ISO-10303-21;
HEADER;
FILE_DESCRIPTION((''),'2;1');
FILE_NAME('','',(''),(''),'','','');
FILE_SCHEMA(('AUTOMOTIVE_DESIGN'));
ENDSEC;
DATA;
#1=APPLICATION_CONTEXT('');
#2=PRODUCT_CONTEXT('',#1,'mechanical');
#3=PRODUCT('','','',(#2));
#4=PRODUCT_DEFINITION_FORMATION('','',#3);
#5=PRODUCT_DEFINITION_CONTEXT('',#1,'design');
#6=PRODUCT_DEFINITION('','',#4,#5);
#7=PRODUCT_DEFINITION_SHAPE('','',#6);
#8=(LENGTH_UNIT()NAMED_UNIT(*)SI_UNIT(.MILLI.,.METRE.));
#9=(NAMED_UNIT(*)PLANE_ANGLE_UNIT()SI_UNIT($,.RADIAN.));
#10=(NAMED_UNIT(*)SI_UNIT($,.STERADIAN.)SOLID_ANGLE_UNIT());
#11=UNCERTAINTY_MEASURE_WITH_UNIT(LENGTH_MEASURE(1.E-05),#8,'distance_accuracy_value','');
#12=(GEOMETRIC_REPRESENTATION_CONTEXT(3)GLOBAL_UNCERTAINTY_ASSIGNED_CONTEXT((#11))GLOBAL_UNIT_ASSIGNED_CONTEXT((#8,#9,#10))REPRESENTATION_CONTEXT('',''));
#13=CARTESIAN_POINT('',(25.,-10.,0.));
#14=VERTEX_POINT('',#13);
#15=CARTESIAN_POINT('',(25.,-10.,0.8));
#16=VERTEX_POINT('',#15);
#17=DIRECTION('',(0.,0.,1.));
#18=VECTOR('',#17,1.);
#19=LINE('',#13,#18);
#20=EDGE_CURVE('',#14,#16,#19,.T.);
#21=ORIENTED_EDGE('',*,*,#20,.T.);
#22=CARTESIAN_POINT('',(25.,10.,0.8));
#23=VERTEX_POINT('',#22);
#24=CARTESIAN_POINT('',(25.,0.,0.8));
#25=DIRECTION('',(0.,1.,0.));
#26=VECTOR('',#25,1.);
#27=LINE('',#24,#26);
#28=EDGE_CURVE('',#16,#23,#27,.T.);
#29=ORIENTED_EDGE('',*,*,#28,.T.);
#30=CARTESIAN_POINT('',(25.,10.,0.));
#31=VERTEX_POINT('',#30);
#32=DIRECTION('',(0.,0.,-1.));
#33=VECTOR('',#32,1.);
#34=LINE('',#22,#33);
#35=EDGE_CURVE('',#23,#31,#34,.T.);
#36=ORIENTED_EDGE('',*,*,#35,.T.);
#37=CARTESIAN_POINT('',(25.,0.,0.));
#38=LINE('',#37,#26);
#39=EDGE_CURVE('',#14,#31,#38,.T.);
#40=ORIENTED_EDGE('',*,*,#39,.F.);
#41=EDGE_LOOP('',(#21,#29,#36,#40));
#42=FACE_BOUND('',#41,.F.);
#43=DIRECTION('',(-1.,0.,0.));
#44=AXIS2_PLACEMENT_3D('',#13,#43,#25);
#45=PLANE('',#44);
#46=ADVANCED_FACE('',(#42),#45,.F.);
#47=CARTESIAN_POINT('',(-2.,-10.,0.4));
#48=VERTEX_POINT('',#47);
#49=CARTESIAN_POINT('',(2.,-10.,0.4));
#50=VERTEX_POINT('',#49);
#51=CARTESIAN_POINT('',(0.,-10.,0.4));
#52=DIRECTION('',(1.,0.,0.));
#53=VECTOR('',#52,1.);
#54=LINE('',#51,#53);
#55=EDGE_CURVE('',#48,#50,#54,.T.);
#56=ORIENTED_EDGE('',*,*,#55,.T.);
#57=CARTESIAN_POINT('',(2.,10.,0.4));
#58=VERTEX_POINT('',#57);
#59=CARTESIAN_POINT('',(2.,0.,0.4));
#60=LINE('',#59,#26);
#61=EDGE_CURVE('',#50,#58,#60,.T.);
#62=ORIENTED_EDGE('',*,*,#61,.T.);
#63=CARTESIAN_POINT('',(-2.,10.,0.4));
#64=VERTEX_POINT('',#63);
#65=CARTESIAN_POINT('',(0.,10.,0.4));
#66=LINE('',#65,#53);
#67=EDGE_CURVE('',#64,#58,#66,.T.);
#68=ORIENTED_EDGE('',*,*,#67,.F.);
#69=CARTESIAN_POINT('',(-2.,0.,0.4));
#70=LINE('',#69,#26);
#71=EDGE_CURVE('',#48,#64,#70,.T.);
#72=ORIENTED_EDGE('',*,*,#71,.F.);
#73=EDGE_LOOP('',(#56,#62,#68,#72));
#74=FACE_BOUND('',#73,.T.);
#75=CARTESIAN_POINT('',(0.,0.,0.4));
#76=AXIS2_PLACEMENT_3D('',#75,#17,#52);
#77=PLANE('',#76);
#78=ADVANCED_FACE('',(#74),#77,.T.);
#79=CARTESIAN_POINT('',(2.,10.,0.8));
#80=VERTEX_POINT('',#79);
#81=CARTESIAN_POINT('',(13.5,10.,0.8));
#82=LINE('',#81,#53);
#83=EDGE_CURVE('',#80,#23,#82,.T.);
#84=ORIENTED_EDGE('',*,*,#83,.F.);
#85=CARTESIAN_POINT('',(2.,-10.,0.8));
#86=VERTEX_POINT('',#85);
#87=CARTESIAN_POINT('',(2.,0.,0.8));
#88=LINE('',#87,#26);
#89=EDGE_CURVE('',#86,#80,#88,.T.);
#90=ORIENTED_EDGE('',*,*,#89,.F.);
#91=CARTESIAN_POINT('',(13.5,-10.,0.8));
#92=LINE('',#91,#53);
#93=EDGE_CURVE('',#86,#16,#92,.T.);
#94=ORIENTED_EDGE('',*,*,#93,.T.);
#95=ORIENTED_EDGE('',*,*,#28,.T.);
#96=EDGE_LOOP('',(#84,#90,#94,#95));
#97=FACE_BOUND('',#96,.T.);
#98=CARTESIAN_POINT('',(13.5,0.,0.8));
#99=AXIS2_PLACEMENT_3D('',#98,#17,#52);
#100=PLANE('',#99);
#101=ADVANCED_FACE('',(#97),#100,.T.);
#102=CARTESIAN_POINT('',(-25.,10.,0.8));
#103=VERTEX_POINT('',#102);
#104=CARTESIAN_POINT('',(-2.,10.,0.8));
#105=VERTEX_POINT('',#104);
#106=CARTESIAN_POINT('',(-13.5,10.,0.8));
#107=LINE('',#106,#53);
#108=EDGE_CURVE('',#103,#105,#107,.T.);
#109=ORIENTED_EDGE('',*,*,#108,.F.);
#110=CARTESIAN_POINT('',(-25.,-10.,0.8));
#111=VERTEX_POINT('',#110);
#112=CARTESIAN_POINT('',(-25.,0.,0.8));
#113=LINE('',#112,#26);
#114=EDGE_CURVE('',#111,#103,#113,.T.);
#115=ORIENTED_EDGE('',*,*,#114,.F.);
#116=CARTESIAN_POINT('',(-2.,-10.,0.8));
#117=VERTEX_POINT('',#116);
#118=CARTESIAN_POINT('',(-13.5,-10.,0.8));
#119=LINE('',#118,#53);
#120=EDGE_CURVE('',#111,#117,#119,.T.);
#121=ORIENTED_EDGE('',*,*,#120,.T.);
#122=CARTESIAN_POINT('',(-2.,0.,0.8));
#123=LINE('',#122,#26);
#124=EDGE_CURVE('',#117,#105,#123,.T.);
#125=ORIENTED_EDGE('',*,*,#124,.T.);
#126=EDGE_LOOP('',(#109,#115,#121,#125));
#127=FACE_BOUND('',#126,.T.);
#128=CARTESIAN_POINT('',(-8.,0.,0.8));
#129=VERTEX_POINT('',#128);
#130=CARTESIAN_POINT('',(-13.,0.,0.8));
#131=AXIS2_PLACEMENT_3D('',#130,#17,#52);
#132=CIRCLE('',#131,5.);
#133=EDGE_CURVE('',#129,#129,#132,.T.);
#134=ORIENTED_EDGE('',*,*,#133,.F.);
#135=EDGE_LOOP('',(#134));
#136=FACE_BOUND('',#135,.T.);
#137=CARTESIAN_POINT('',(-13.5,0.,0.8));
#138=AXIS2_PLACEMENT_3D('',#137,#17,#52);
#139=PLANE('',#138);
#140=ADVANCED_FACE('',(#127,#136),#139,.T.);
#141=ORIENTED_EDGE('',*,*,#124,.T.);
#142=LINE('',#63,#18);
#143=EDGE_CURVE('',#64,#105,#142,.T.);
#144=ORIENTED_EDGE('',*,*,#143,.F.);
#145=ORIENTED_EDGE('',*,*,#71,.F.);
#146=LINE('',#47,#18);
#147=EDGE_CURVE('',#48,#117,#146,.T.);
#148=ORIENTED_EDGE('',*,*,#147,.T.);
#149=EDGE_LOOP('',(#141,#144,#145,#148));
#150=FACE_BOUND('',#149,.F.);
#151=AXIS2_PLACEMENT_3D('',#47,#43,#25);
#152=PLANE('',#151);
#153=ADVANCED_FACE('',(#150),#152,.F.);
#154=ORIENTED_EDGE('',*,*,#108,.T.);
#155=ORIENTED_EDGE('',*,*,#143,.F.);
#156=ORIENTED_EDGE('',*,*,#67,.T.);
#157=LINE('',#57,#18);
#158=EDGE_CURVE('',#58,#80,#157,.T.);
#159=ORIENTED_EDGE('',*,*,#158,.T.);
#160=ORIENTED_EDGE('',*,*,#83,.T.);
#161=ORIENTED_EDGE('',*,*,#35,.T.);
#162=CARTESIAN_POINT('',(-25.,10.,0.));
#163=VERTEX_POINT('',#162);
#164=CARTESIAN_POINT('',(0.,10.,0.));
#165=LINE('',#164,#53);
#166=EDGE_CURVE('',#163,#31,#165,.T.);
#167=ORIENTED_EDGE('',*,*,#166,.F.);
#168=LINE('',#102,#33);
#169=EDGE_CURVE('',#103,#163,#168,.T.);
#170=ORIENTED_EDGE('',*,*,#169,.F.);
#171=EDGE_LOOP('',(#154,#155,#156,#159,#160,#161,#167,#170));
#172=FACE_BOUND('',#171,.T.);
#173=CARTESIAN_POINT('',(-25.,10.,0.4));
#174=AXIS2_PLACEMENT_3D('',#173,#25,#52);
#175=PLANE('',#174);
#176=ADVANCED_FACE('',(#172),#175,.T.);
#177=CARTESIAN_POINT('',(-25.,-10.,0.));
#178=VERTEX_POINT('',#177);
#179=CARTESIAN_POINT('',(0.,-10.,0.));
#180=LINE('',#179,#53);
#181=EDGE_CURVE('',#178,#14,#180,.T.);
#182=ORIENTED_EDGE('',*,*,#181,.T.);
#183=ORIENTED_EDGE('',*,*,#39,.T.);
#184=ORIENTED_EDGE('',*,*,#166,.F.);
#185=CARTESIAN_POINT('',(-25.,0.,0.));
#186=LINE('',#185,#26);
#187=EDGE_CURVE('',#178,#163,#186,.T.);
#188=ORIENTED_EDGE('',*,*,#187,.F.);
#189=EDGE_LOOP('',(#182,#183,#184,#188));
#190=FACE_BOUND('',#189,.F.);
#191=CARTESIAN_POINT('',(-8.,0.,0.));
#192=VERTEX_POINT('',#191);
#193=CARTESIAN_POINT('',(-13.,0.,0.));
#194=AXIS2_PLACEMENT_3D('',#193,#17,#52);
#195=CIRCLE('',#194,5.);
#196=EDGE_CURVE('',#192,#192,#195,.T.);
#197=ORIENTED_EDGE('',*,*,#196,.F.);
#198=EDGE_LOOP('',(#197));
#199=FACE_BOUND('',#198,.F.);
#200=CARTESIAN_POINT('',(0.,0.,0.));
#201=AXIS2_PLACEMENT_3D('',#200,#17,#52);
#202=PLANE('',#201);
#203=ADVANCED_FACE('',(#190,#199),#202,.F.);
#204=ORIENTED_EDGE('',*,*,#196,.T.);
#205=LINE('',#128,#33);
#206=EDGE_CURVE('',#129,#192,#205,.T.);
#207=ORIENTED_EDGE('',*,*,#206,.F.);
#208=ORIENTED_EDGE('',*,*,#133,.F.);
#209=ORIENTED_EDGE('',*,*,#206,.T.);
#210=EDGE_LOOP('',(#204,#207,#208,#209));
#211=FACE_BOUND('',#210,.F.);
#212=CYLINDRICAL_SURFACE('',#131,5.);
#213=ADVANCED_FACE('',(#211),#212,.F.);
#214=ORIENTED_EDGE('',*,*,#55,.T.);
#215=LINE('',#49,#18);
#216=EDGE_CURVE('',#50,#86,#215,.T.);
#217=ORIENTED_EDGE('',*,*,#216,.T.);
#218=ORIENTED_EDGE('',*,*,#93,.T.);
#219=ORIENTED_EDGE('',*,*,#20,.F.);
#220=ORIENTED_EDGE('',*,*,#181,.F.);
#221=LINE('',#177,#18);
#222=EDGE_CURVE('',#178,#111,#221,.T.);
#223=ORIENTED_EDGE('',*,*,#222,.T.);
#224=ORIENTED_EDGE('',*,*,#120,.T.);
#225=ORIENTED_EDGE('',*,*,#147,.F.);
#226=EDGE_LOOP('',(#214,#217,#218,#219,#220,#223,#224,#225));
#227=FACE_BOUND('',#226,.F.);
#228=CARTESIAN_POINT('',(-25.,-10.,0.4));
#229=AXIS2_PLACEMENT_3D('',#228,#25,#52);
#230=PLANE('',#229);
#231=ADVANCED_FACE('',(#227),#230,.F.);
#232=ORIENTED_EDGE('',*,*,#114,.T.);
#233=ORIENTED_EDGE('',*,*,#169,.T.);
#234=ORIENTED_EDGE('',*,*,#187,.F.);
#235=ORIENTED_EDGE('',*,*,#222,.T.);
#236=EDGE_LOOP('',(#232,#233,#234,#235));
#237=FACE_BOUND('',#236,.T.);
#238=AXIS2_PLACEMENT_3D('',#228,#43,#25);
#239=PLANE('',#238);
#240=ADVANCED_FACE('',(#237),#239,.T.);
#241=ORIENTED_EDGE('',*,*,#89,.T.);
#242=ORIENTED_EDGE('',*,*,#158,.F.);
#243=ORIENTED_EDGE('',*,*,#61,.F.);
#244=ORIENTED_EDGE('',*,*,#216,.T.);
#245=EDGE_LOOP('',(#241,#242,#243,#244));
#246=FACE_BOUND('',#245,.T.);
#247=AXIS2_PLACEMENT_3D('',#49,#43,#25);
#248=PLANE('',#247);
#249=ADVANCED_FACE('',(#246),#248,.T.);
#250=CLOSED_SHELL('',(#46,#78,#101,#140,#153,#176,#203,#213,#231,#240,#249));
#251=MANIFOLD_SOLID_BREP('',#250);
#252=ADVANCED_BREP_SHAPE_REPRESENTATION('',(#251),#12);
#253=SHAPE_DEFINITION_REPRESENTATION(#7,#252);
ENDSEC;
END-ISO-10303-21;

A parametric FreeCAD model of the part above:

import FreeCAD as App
import Part
import Sketcher

V = App.Vector


def add_polygon(sketch, points):
    """Adds a closed chain of lines whose ends are joined by coincident constraints."""
    first, n = sketch.GeometryCount, len(points)
    for a, b in zip(points, points[1:] + points[:1]):
        sketch.addGeometry(Part.LineSegment(App.Vector(*a, 0), App.Vector(*b, 0)), False)
    for i in range(n):
        sketch.addConstraint(Sketcher.Constraint("Coincident", first + i, 2, first + (i + 1) % n, 1))

doc = App.newDocument("Part")
params = doc.addObject("Spreadsheet::Sheet", "Params")
for row, (alias, value) in enumerate([
    ("sketch1_width", "50 mm"),
    ("sketch1_height", "20 mm"),
    ("pad1_length", "0.4 mm"),
    ("sketch2_width", "23 mm"),
    ("sketch2_height", "20 mm"),
    ("pad2_length", "0.4 mm"),
    ("sketch3_diameter", "10 mm"),
    ("pocket1_length", "25 mm"),
], start=1):
    params.set(f"A{row}", alias)
    params.set(f"B{row}", "=" + value)
    params.setAlias(f"B{row}", alias)

body = doc.addObject("PartDesign::Body", "Body")

sketch1 = doc.addObject("Sketcher::SketchObject", "Sketch")
body.addObject(sketch1)
sketch1.AttachmentSupport = (doc.XY_Plane, [""])
sketch1.MapMode = "FlatFace"
add_polygon(sketch1, [(-25, 10), (-25, -10), (25, -10), (25, 10)])
sketch1.addConstraint(Sketcher.Constraint("Vertical", 0))
sketch1.addConstraint(Sketcher.Constraint("Horizontal", 1))
sketch1.addConstraint(Sketcher.Constraint("Vertical", 2))
sketch1.addConstraint(Sketcher.Constraint("Horizontal", 3))
sketch1.addConstraint(Sketcher.Constraint("Symmetric", 0, 2, 2, 2, -1, 1))
sketch1.addConstraint(Sketcher.Constraint("DistanceX", 1, 1, 1, 2, 50.0))
sketch1.addConstraint(Sketcher.Constraint("DistanceY", 0, 2, 0, 1, 20.0))
sketch1.setExpression("Constraints[9]", "Params.sketch1_width")
sketch1.setExpression("Constraints[10]", "Params.sketch1_height")
pad1 = doc.addObject("PartDesign::Pad", "Pad")
body.addObject(pad1)
pad1.Profile = sketch1
pad1.setExpression("Length", "Params.pad1_length")

sketch2 = doc.addObject("Sketcher::SketchObject", "Sketch001")
body.addObject(sketch2)
sketch2.AttachmentSupport = (doc.XY_Plane, [""])
sketch2.MapMode = "FlatFace"
sketch2.AttachmentOffset = App.Placement(V(0, 0, 0.4), App.Rotation())
add_polygon(sketch2, [(-25, 10), (-25, -10), (-2, -10), (-2, 10)])
add_polygon(sketch2, [(2, 10), (2, -10), (25, -10), (25, 10)])
sketch2.addConstraint(Sketcher.Constraint("Vertical", 0))
sketch2.addConstraint(Sketcher.Constraint("Horizontal", 1))
sketch2.addConstraint(Sketcher.Constraint("Vertical", 2))
sketch2.addConstraint(Sketcher.Constraint("Horizontal", 3))
sketch2.addConstraint(Sketcher.Constraint("Vertical", 4))
sketch2.addConstraint(Sketcher.Constraint("Horizontal", 5))
sketch2.addConstraint(Sketcher.Constraint("Vertical", 6))
sketch2.addConstraint(Sketcher.Constraint("Horizontal", 7))
sketch2.addConstraint(Sketcher.Constraint("Symmetric", 2, 2, 4, 2, -1, 1))
sketch2.addConstraint(Sketcher.Constraint("Symmetric", 0, 2, 6, 2, -1, 1))
sketch2.addConstraint(Sketcher.Constraint("Horizontal", 1, 2, 4, 2))
sketch2.addConstraint(Sketcher.Constraint("DistanceX", 1, 1, 1, 2, 23.0))
sketch2.addConstraint(Sketcher.Constraint("DistanceY", 0, 2, 0, 1, 20.0))
sketch2.addConstraint(Sketcher.Constraint("DistanceX", 0, 2, -1, 1, 25.0))
sketch2.setExpression("Constraints[19]", "Params.sketch2_width")
sketch2.setExpression("Constraints[20]", "Params.sketch2_height")
pad2 = doc.addObject("PartDesign::Pad", "Pad001")
body.addObject(pad2)
pad2.Profile = sketch2
pad2.setExpression("Length", "Params.pad2_length")

sketch3 = doc.addObject("Sketcher::SketchObject", "Sketch002")
body.addObject(sketch3)
sketch3.AttachmentSupport = (doc.XY_Plane, [""])
sketch3.MapMode = "FlatFace"
sketch3.AttachmentOffset = App.Placement(V(0, 0, 0.8), App.Rotation())
sketch3.addGeometry(Part.Circle(V(-13, 0, 0), V(0, 0, 1), 5), False)
sketch3.addConstraint(Sketcher.Constraint("PointOnObject", 0, 3, -1))
sketch3.addConstraint(Sketcher.Constraint("Diameter", 0, 10.0))
sketch3.addConstraint(Sketcher.Constraint("DistanceX", 0, 3, -1, 1, 13.0))
sketch3.setExpression("Constraints[1]", "Params.sketch3_diameter")
pocket1 = doc.addObject("PartDesign::Pocket", "Pocket")
body.addObject(pocket1)
pocket1.Profile = sketch3
pocket1.setExpression("Length", "Params.pocket1_length")

doc.recompute()
